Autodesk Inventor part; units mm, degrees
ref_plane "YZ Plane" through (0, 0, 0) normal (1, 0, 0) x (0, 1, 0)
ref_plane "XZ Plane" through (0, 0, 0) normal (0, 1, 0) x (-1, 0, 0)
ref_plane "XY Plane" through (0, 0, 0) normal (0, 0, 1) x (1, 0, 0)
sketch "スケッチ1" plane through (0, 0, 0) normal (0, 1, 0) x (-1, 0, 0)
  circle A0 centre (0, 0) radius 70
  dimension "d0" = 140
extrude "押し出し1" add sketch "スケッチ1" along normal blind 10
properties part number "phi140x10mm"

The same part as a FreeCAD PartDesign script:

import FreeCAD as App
import Part
import Sketcher

V = App.Vector

doc = App.newDocument("Part")
body = doc.addObject("PartDesign::Body", "Body")

# Sketch on XZ plane
sketch1 = body.newObject("Sketcher::SketchObject", "Sketch")
sketch1.AttachmentSupport = (doc.getObject("XZ_Plane"), [""])
sketch1.MapMode = "FlatFace"
sketch1.addGeometry(Part.Circle(V(0, 0, 0), V(0, 0, 1), 70), False)
sketch1.addConstraint(Sketcher.Constraint("Coincident", 0, 3, -1, 1))
sketch1.addConstraint(Sketcher.Constraint("Diameter", 0, 140.0))
pad1 = body.newObject("PartDesign::Pad", "Pad")
pad1.Profile = sketch1
pad1.Length = 10
pad1.Reversed = True

doc.recompute()
